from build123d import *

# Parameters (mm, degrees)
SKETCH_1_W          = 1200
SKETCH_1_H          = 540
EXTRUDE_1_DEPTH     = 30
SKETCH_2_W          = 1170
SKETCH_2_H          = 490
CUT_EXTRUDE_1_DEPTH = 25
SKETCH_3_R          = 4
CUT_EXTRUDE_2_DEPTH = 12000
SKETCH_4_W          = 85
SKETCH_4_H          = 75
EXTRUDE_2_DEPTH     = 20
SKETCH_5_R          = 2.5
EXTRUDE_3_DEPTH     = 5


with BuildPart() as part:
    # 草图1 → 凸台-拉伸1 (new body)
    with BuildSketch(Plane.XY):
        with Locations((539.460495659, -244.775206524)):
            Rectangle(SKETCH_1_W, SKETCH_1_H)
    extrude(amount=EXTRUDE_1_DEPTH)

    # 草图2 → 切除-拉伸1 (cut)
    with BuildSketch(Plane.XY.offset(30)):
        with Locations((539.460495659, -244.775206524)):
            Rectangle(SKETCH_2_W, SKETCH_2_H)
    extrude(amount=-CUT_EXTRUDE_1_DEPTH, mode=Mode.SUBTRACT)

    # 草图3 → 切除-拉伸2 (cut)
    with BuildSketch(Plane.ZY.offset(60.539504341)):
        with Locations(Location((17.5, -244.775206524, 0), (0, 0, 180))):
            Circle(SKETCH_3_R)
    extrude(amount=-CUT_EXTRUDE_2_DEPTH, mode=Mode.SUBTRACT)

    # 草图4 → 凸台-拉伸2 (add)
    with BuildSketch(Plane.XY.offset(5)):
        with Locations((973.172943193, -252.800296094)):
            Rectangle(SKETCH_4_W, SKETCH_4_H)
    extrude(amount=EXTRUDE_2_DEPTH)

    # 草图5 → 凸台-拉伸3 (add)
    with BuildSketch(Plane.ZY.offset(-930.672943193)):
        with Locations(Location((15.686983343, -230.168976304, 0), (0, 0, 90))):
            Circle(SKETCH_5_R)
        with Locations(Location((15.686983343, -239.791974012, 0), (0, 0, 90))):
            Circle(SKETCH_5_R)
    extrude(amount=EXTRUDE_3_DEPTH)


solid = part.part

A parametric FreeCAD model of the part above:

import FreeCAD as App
import Part
import Sketcher

V = App.Vector
Q = App.Units.Quantity

doc = App.newDocument("Part")
params = doc.addObject("Spreadsheet::Sheet", "Params")
for row, (alias, value) in enumerate([
    ("sketch1_width", "1200 mm"),
    ("sketch1_height", "540 mm"),
    ("pad1_length", "30 mm"),
    ("sketch2_width", "1170 mm"),
    ("sketch2_height", "490 mm"),
    ("pocket1_length", "25 mm"),
    ("sketch3_diameter", "8 mm"),
    ("pocket2_length", "12000 mm"),
    ("sketch4_width", "85 mm"),
    ("sketch4_height", "75 mm"),
    ("pad2_length", "20 mm"),
    ("sketch5_diameter", "5 mm"),
    ("pad3_length", "5 mm"),
], start=1):
    params.set(f"A{row}", alias)
    params.set(f"B{row}", "=" + value)
    params.setAlias(f"B{row}", alias)

body = doc.addObject("PartDesign::Body", "Body")

# Sketch on XY plane
sketch1 = body.newObject("Sketcher::SketchObject", "Sketch")
sketch1.AttachmentSupport = (doc.getObject("XY_Plane"), [""])
sketch1.MapMode = "FlatFace"
sketch1.addGeometry([
    Part.LineSegment(V(-60.539504, 25.224793, 0), V(-60.539504, -514.775207, 0)),
    Part.LineSegment(V(-60.539504, -514.775207, 0), V(1139.460496, -514.775207, 0)),
    Part.LineSegment(V(1139.460496, -514.775207, 0), V(1139.460496, 25.224793, 0)),
    Part.LineSegment(V(1139.460496, 25.224793, 0), V(-60.539504, 25.224793, 0)),
], False)
sketch1.addConstraint([
    Sketcher.Constraint("Coincident", 0, 2, 1, 1),
    Sketcher.Constraint("Coincident", 1, 2, 2, 1),
    Sketcher.Constraint("Coincident", 2, 2, 3, 1),
    Sketcher.Constraint("Coincident", 3, 2, 0, 1),
    Sketcher.Constraint("Vertical", 0),
    Sketcher.Constraint("Horizontal", 1),
    Sketcher.Constraint("Vertical", 2),
    Sketcher.Constraint("Horizontal", 3),
    Sketcher.Constraint("DistanceX", 1, 1, 1, 2, Q("1200 mm")),
    Sketcher.Constraint("DistanceY", 0, 2, 0, 1, Q("540 mm")),
    Sketcher.Constraint("DistanceX", 0, 2, -1, 1, Q("60.539504 mm")),
    Sketcher.Constraint("DistanceY", 0, 2, -1, 1, Q("514.775207 mm")),
])
sketch1.setExpression("Constraints[8]", "Params.sketch1_width")
sketch1.setExpression("Constraints[9]", "Params.sketch1_height")
pad1 = body.newObject("PartDesign::Pad", "Pad")
pad1.Profile = sketch1
pad1.setExpression("Length", "Params.pad1_length")

# Sketch on XY plane
sketch2 = body.newObject("Sketcher::SketchObject", "Sketch001")
sketch2.AttachmentSupport = (doc.getObject("XY_Plane"), [""])
sketch2.MapMode = "FlatFace"
sketch2.AttachmentOffset = App.Placement(V(0, 0, 30), App.Rotation())
sketch2.addGeometry([
    Part.LineSegment(V(-45.539504, 0.224793, 0), V(-45.539504, -489.775207, 0)),
    Part.LineSegment(V(-45.539504, -489.775207, 0), V(1124.460496, -489.775207, 0)),
    Part.LineSegment(V(1124.460496, -489.775207, 0), V(1124.460496, 0.224793, 0)),
    Part.LineSegment(V(1124.460496, 0.224793, 0), V(-45.539504, 0.224793, 0)),
], False)
sketch2.addConstraint([
    Sketcher.Constraint("Coincident", 0, 2, 1, 1),
    Sketcher.Constraint("Coincident", 1, 2, 2, 1),
    Sketcher.Constraint("Coincident", 2, 2, 3, 1),
    Sketcher.Constraint("Coincident", 3, 2, 0, 1),
    Sketcher.Constraint("Vertical", 0),
    Sketcher.Constraint("Horizontal", 1),
    Sketcher.Constraint("Vertical", 2),
    Sketcher.Constraint("Horizontal", 3),
    Sketcher.Constraint("DistanceX", 1, 1, 1, 2, Q("1170 mm")),
    Sketcher.Constraint("DistanceY", 0, 2, 0, 1, Q("490 mm")),
    Sketcher.Constraint("DistanceX", 0, 2, -1, 1, Q("45.539504 mm")),
    Sketcher.Constraint("DistanceY", 0, 2, -1, 1, Q("489.775207 mm")),
])
sketch2.setExpression("Constraints[8]", "Params.sketch2_width")
sketch2.setExpression("Constraints[9]", "Params.sketch2_height")
pocket1 = body.newObject("PartDesign::Pocket", "Pocket")
pocket1.Profile = sketch2
pocket1.setExpression("Length", "Params.pocket1_length")

# Sketch on YZ plane
sketch3 = body.newObject("Sketcher::SketchObject", "Sketch002")
sketch3.AttachmentSupport = (doc.getObject("YZ_Plane"), [""])
sketch3.MapMode = "FlatFace"
sketch3.AttachmentOffset = App.Placement(V(0, 0, -60.539504), App.Rotation())
sketch3.addGeometry(Part.Circle(V(-244.775207, 17.5, 0), V(0, 0, 1), 4), False)
sketch3.addConstraint([
    Sketcher.Constraint("Diameter", 0, Q("8 mm")),
    Sketcher.Constraint("DistanceY", -1, 1, 0, 3, Q("17.5 mm")),
    Sketcher.Constraint("DistanceX", 0, 3, -1, 1, Q("244.775207 mm")),
])
sketch3.setExpression("Constraints[0]", "Params.sketch3_diameter")
pocket2 = body.newObject("PartDesign::Pocket", "Pocket001")
pocket2.Profile = sketch3
pocket2.setExpression("Length", "Params.pocket2_length")
pocket2.Reversed = True

# Sketch on XY plane
sketch4 = body.newObject("Sketcher::SketchObject", "Sketch003")
sketch4.AttachmentSupport = (doc.getObject("XY_Plane"), [""])
sketch4.MapMode = "FlatFace"
sketch4.AttachmentOffset = App.Placement(V(0, 0, 5), App.Rotation())
sketch4.addGeometry([
    Part.LineSegment(V(930.672943, -215.300296, 0), V(930.672943, -290.300296, 0)),
    Part.LineSegment(V(930.672943, -290.300296, 0), V(1015.672943, -290.300296, 0)),
    Part.LineSegment(V(1015.672943, -290.300296, 0), V(1015.672943, -215.300296, 0)),
    Part.LineSegment(V(1015.672943, -215.300296, 0), V(930.672943, -215.300296, 0)),
], False)
sketch4.addConstraint([
    Sketcher.Constraint("Coincident", 0, 2, 1, 1),
    Sketcher.Constraint("Coincident", 1, 2, 2, 1),
    Sketcher.Constraint("Coincident", 2, 2, 3, 1),
    Sketcher.Constraint("Coincident", 3, 2, 0, 1),
    Sketcher.Constraint("Vertical", 0),
    Sketcher.Constraint("Horizontal", 1),
    Sketcher.Constraint("Vertical", 2),
    Sketcher.Constraint("Horizontal", 3),
    Sketcher.Constraint("DistanceX", 1, 1, 1, 2, Q("85 mm")),
    Sketcher.Constraint("DistanceY", 0, 2, 0, 1, Q("75 mm")),
    Sketcher.Constraint("DistanceX", -1, 1, 0, 2, Q("930.672943 mm")),
    Sketcher.Constraint("DistanceY", 0, 2, -1, 1, Q("290.300296 mm")),
])
sketch4.setExpression("Constraints[8]", "Params.sketch4_width")
sketch4.setExpression("Constraints[9]", "Params.sketch4_height")
pad2 = body.newObject("PartDesign::Pad", "Pad001")
pad2.Profile = sketch4
pad2.setExpression("Length", "Params.pad2_length")

# Sketch on YZ plane
sketch5 = body.newObject("Sketcher::SketchObject", "Sketch004")
sketch5.AttachmentSupport = (doc.getObject("YZ_Plane"), [""])
sketch5.MapMode = "FlatFace"
sketch5.AttachmentOffset = App.Placement(V(0, 0, 930.672943), App.Rotation())
sketch5.addGeometry([
    Part.Circle(V(-230.168976, 15.686983, 0), V(0, 0, 1), 2.5),
    Part.Circle(V(-239.791974, 15.686983, 0), V(0, 0, 1), 2.5),
], False)
sketch5.addConstraint([
    Sketcher.Constraint("Equal", 0, 1),
    Sketcher.Constraint("Horizontal", 0, 3, 1, 3),
    Sketcher.Constraint("Diameter", 0, Q("5 mm")),
    Sketcher.Constraint("DistanceX", 0, 3, -1, 1, Q("230.168976 mm")),
    Sketcher.Constraint("DistanceY", -1, 1, 0, 3, Q("15.686983 mm")),
    Sketcher.Constraint("DistanceX", 1, 3, -1, 1, Q("239.791974 mm")),
])
sketch5.setExpression("Constraints[2]", "Params.sketch5_diameter")
pad3 = body.newObject("PartDesign::Pad", "Pad002")
pad3.Profile = sketch5
pad3.setExpression("Length", "Params.pad3_length")
pad3.Reversed = True

doc.recompute()
